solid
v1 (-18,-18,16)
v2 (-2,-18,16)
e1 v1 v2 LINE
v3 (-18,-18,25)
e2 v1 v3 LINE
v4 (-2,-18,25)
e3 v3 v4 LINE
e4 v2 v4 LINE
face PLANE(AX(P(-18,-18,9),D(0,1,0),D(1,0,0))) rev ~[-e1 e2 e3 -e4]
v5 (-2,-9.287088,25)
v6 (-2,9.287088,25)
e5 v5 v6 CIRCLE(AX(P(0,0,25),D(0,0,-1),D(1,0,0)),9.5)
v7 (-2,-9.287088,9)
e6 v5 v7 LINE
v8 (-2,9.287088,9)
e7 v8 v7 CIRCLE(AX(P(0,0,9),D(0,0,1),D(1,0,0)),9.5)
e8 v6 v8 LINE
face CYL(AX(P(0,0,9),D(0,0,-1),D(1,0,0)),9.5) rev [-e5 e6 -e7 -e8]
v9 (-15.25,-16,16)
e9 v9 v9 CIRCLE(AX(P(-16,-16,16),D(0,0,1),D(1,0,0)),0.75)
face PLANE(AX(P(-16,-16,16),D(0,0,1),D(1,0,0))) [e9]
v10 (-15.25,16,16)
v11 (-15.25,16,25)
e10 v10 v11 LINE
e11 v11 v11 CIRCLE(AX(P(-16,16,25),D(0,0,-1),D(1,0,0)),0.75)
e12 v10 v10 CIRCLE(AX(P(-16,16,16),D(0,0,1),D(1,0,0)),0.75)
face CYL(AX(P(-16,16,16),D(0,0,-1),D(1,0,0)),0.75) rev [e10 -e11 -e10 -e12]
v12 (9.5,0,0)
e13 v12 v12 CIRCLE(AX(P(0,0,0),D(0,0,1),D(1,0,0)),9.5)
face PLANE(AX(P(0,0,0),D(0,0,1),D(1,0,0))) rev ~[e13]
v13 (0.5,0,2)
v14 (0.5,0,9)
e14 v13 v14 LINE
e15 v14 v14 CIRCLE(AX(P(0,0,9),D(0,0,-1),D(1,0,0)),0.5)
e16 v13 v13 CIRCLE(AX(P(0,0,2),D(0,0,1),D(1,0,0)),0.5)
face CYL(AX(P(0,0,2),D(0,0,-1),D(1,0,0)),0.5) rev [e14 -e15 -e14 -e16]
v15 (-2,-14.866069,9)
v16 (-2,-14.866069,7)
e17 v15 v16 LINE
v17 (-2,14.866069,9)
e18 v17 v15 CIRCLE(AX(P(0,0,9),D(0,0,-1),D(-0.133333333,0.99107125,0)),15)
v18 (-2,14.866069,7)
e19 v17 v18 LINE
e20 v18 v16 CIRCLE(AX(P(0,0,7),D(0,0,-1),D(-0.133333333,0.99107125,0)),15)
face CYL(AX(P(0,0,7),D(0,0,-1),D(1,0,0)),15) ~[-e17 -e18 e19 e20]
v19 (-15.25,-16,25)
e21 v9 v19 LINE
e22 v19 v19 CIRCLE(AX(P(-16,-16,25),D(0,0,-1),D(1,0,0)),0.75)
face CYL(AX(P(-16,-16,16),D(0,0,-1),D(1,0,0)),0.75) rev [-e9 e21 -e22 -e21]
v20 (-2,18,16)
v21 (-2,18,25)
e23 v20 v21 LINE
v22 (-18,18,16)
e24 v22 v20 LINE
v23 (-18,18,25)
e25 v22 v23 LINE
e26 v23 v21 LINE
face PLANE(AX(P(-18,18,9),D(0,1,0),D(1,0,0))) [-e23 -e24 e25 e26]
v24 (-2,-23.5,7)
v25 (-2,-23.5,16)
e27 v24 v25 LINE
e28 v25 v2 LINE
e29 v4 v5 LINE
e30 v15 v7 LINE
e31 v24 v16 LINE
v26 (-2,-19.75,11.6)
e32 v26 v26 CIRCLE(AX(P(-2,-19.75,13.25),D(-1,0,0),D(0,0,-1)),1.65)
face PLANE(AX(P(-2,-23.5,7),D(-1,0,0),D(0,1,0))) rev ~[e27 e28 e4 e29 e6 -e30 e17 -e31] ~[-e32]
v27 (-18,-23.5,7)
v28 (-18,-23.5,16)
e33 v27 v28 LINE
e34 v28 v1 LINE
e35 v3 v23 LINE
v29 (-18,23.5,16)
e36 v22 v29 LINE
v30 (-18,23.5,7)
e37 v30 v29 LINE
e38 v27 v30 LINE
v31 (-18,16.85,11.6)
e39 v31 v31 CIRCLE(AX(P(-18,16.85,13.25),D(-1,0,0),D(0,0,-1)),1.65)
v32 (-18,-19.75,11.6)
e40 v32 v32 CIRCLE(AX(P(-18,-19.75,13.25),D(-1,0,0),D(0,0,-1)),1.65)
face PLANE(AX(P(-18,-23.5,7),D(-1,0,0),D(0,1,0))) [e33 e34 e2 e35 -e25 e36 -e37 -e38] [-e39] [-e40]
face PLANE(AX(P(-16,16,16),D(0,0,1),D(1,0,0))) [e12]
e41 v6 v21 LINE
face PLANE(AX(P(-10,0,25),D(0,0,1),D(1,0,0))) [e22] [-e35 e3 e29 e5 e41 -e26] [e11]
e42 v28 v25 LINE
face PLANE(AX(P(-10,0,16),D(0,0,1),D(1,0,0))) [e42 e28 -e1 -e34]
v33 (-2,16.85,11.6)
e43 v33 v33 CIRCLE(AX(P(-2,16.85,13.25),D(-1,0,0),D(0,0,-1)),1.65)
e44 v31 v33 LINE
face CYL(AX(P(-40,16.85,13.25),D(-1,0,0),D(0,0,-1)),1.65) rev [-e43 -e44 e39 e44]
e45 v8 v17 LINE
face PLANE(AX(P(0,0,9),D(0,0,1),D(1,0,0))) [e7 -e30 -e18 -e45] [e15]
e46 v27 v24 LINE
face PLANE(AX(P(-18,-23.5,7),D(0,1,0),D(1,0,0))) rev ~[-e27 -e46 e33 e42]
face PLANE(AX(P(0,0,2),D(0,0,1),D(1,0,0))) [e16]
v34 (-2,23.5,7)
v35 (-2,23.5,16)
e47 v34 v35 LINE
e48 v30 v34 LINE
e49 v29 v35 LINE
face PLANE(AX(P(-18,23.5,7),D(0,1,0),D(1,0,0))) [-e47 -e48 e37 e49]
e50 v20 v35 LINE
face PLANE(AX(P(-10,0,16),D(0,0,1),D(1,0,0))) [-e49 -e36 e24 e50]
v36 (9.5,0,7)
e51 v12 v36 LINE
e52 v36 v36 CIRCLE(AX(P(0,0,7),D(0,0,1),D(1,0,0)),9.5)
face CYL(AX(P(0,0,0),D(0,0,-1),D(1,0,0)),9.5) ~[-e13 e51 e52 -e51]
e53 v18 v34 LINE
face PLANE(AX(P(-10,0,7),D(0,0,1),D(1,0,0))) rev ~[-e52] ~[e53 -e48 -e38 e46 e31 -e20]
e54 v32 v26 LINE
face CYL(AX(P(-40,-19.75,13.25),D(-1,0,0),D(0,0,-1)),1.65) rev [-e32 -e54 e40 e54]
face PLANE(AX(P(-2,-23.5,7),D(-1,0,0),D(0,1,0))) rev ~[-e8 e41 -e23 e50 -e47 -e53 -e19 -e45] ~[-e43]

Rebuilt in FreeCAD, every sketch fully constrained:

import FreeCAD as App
import Part
import Sketcher
Q = App.Units.Quantity


def add_polygon(sketch, points):
    """Adds a closed chain of lines whose ends are joined by coincident constraints."""
    first, n = sketch.GeometryCount, len(points)
    for a, b in zip(points, points[1:] + points[:1]):
        sketch.addGeometry(Part.LineSegment(App.Vector(*a, 0), App.Vector(*b, 0)), False)
    for i in range(n):
        sketch.addConstraint(Sketcher.Constraint("Coincident", first + i, 2, first + (i + 1) % n, 1))

doc = App.newDocument("Part")
body = doc.addObject("PartDesign::Body", "Body")

sketch1 = body.newObject("Sketcher::SketchObject", "Sketch")
sketch1.AttachmentSupport = (doc.getObject("XY_Plane"), [""])
sketch1.MapMode = "FlatFace"
sketch1.AttachmentOffset = App.Placement(App.Vector(0, 0, 2), App.Rotation())
sketch1.addGeometry(Part.Circle(App.Vector(0, 0, 0), App.Vector(0, 0, 1), 0.5), False)
sketch1.addConstraint([
    Sketcher.Constraint("Coincident", 0, 3, -1, 1),
    Sketcher.Constraint("Diameter", 0, Q("1 mm")),
])
pad1 = body.newObject("PartDesign::Pad", "Pad")
pad1.Profile = sketch1
pad1.Length = 10
body2 = doc.addObject("PartDesign::Body", "Body001")

sketch2 = body2.newObject("Sketcher::SketchObject", "Sketch001")
sketch2.AttachmentSupport = (doc.getObject("XY_Plane001"), [""])
sketch2.MapMode = "FlatFace"
sketch2.AttachmentOffset = App.Placement(App.Vector(0, 0, 9), App.Rotation())
sketch2.addGeometry(Part.Circle(App.Vector(0, 0, 0), App.Vector(0, 0, 1), 9.5), False)
sketch2.addConstraint([
    Sketcher.Constraint("Coincident", 0, 3, -1, 1),
    Sketcher.Constraint("Diameter", 0, Q("19 mm")),
])
pad2 = body2.newObject("PartDesign::Pad", "Pad001")
pad2.Profile = sketch2
pad2.Length = 50
body3 = doc.addObject("PartDesign::Body", "Body002")

sketch3 = body3.newObject("Sketcher::SketchObject", "Sketch002")
sketch3.AttachmentSupport = (doc.getObject("XY_Plane002"), [""])
sketch3.MapMode = "FlatFace"
sketch3.AttachmentOffset = App.Placement(App.Vector(0, 0, 16), App.Rotation())
sketch3.addGeometry(Part.Circle(App.Vector(-16, -16, 0), App.Vector(0, 0, 1), 0.75), False)
sketch3.addConstraint([
    Sketcher.Constraint("Diameter", 0, Q("1.5 mm")),
    Sketcher.Constraint("DistanceX", 0, 3, -1, 1, Q("16 mm")),
    Sketcher.Constraint("DistanceY", 0, 3, -1, 1, Q("16 mm")),
])
pad3 = body3.newObject("PartDesign::Pad", "Pad002")
pad3.Profile = sketch3
pad3.Length = 10
body4 = doc.addObject("PartDesign::Body", "Body003")
body4.AllowCompound = True

sketch4 = body4.newObject("Sketcher::SketchObject", "Sketch003")
sketch4.AttachmentSupport = (doc.getObject("XY_Plane003"), [""])
sketch4.MapMode = "FlatFace"
sketch4.AttachmentOffset = App.Placement(App.Vector(0, 0, 16), App.Rotation())
sketch4.addGeometry(Part.Circle(App.Vector(-16, 16, 0), App.Vector(0, 0, 1), 0.75), False)
sketch4.addConstraint([
    Sketcher.Constraint("Diameter", 0, Q("1.5 mm")),
    Sketcher.Constraint("DistanceX", 0, 3, -1, 1, Q("16 mm")),
    Sketcher.Constraint("DistanceY", -1, 1, 0, 3, Q("16 mm")),
])
pad4 = body4.newObject("PartDesign::Pad", "Pad003")
pad4.Profile = sketch4
pad4.Length = 10
doc.recompute()

boolean = body4.newObject("PartDesign::Boolean", "Boolean")
boolean.Type = "Fuse"
boolean.addObjects([body3])
body5 = doc.addObject("PartDesign::Body", "Body004")

sketch5 = body5.newObject("Sketcher::SketchObject", "Sketch004")
sketch5.AttachmentSupport = (doc.getObject("YZ_Plane004"), [""])
sketch5.MapMode = "FlatFace"
sketch5.AttachmentOffset = App.Placement(App.Vector(0, 0, -40), App.Rotation())
sketch5.addGeometry(Part.Circle(App.Vector(-19.75, 13.25, 0), App.Vector(0, 0, 1), 1.65), False)
sketch5.addConstraint([
    Sketcher.Constraint("Diameter", 0, Q("3.3 mm")),
    Sketcher.Constraint("DistanceX", 0, 3, -1, 1, Q("19.75 mm")),
    Sketcher.Constraint("DistanceY", -1, 1, 0, 3, Q("13.25 mm")),
])
pad5 = body5.newObject("PartDesign::Pad", "Pad004")
pad5.Profile = sketch5
pad5.Length = 100
body6 = doc.addObject("PartDesign::Body", "Body005")
body6.AllowCompound = True

sketch6 = body6.newObject("Sketcher::SketchObject", "Sketch005")
sketch6.AttachmentSupport = (doc.getObject("YZ_Plane005"), [""])
sketch6.MapMode = "FlatFace"
sketch6.AttachmentOffset = App.Placement(App.Vector(0, 0, -40), App.Rotation())
sketch6.addGeometry(Part.Circle(App.Vector(16.85, 13.25, 0), App.Vector(0, 0, 1), 1.65), False)
sketch6.addConstraint([
    Sketcher.Constraint("Diameter", 0, Q("3.3 mm")),
    Sketcher.Constraint("DistanceX", -1, 1, 0, 3, Q("16.85 mm")),
    Sketcher.Constraint("DistanceY", -1, 1, 0, 3, Q("13.25 mm")),
])
pad6 = body6.newObject("PartDesign::Pad", "Pad005")
pad6.Profile = sketch6
pad6.Length = 100
doc.recompute()

boolean2 = body6.newObject("PartDesign::Boolean", "Boolean001")
boolean2.Type = "Fuse"
boolean2.addObjects([body5])
body7 = doc.addObject("PartDesign::Body", "Body006")

sketch7 = body7.newObject("Sketcher::SketchObject", "Sketch006")
sketch7.AttachmentSupport = (doc.getObject("XY_Plane006"), [""])
sketch7.MapMode = "FlatFace"
sketch7.AttachmentOffset = App.Placement(App.Vector(0, 0, 7), App.Rotation())
sketch7.addGeometry(Part.Circle(App.Vector(0, 0, 0), App.Vector(0, 0, 1), 15), False)
sketch7.addConstraint([
    Sketcher.Constraint("Coincident", 0, 3, -1, 1),
    Sketcher.Constraint("Diameter", 0, Q("30 mm")),
])
pad7 = body7.newObject("PartDesign::Pad", "Pad006")
pad7.Profile = sketch7
pad7.Length = 2
body8 = doc.addObject("PartDesign::Body", "Body007")

sketch8 = body8.newObject("Sketcher::SketchObject", "Sketch007")
sketch8.AttachmentSupport = (doc.getObject("XY_Plane007"), [""])
sketch8.MapMode = "FlatFace"
sketch8.AttachmentOffset = App.Placement(App.Vector(0, 0, 9), App.Rotation())
add_polygon(sketch8, [(-18, 18), (-18, -18), (-2, -18), (-2, 18)])
sketch8.addConstraint([
    Sketcher.Constraint("Vertical", 0),
    Sketcher.Constraint("Horizontal", 1),
    Sketcher.Constraint("Vertical", 2),
    Sketcher.Constraint("Horizontal", 3),
    Sketcher.Constraint("DistanceX", 1, 1, 1, 2, Q("16 mm")),
    Sketcher.Constraint("DistanceY", 0, 2, 0, 1, Q("36 mm")),
    Sketcher.Constraint("DistanceX", 0, 2, -1, 1, Q("18 mm")),
    Sketcher.Constraint("DistanceY", 0, 2, -1, 1, Q("18 mm")),
])
pad8 = body8.newObject("PartDesign::Pad", "Pad007")
pad8.Profile = sketch8
pad8.Length = 16
body9 = doc.addObject("PartDesign::Body", "Body008")

sketch9 = body9.newObject("Sketcher::SketchObject", "Sketch008")
sketch9.AttachmentSupport = (doc.getObject("XY_Plane008"), [""])
sketch9.MapMode = "FlatFace"
sketch9.AttachmentOffset = App.Placement(App.Vector(0, 0, 7), App.Rotation())
add_polygon(sketch9, [(-18, 23.5), (-18, -23.5), (-2, -23.5), (-2, 23.5)])
sketch9.addConstraint([
    Sketcher.Constraint("Vertical", 0),
    Sketcher.Constraint("Horizontal", 1),
    Sketcher.Constraint("Vertical", 2),
    Sketcher.Constraint("Horizontal", 3),
    Sketcher.Constraint("DistanceX", 1, 1, 1, 2, Q("16 mm")),
    Sketcher.Constraint("DistanceY", 0, 2, 0, 1, Q("47 mm")),
    Sketcher.Constraint("DistanceX", 0, 2, -1, 1, Q("18 mm")),
    Sketcher.Constraint("DistanceY", 0, 2, -1, 1, Q("23.5 mm")),
])
pad9 = body9.newObject("PartDesign::Pad", "Pad008")
pad9.Profile = sketch9
pad9.Length = 9
body10 = doc.addObject("PartDesign::Body", "Body009")

sketch10 = body10.newObject("Sketcher::SketchObject", "Sketch009")
sketch10.AttachmentSupport = (doc.getObject("XY_Plane009"), [""])
sketch10.MapMode = "FlatFace"
sketch10.addGeometry(Part.Circle(App.Vector(0, 0, 0), App.Vector(0, 0, 1), 9.5), False)
sketch10.addConstraint([
    Sketcher.Constraint("Coincident", 0, 3, -1, 1),
    Sketcher.Constraint("Diameter", 0, Q("19 mm")),
])
pad10 = body10.newObject("PartDesign::Pad", "Pad009")
pad10.Profile = sketch10
pad10.Length = 7
doc.recompute()

boolean3 = body10.newObject("PartDesign::Boolean", "Boolean002")
boolean3.Type = "Fuse"
boolean3.addObjects([body7])
doc.recompute()

boolean4 = body10.newObject("PartDesign::Boolean", "Boolean003")
boolean4.Type = "Fuse"
boolean4.addObjects([body8])
doc.recompute()

boolean5 = body10.newObject("PartDesign::Boolean", "Boolean004")
boolean5.Type = "Fuse"
boolean5.addObjects([body9])
doc.recompute()

boolean6 = body10.newObject("PartDesign::Boolean", "Boolean005")
boolean6.Type = "Cut"
boolean6.addObjects([body6])
doc.recompute()

boolean7 = body10.newObject("PartDesign::Boolean", "Boolean006")
boolean7.Type = "Cut"
boolean7.addObjects([body4])
doc.recompute()

boolean8 = body10.newObject("PartDesign::Boolean", "Boolean007")
boolean8.Type = "Cut"
boolean8.addObjects([body2])
doc.recompute()

boolean9 = body10.newObject("PartDesign::Boolean", "Boolean008")
boolean9.Type = "Cut"
boolean9.addObjects([body])

doc.recompute()
